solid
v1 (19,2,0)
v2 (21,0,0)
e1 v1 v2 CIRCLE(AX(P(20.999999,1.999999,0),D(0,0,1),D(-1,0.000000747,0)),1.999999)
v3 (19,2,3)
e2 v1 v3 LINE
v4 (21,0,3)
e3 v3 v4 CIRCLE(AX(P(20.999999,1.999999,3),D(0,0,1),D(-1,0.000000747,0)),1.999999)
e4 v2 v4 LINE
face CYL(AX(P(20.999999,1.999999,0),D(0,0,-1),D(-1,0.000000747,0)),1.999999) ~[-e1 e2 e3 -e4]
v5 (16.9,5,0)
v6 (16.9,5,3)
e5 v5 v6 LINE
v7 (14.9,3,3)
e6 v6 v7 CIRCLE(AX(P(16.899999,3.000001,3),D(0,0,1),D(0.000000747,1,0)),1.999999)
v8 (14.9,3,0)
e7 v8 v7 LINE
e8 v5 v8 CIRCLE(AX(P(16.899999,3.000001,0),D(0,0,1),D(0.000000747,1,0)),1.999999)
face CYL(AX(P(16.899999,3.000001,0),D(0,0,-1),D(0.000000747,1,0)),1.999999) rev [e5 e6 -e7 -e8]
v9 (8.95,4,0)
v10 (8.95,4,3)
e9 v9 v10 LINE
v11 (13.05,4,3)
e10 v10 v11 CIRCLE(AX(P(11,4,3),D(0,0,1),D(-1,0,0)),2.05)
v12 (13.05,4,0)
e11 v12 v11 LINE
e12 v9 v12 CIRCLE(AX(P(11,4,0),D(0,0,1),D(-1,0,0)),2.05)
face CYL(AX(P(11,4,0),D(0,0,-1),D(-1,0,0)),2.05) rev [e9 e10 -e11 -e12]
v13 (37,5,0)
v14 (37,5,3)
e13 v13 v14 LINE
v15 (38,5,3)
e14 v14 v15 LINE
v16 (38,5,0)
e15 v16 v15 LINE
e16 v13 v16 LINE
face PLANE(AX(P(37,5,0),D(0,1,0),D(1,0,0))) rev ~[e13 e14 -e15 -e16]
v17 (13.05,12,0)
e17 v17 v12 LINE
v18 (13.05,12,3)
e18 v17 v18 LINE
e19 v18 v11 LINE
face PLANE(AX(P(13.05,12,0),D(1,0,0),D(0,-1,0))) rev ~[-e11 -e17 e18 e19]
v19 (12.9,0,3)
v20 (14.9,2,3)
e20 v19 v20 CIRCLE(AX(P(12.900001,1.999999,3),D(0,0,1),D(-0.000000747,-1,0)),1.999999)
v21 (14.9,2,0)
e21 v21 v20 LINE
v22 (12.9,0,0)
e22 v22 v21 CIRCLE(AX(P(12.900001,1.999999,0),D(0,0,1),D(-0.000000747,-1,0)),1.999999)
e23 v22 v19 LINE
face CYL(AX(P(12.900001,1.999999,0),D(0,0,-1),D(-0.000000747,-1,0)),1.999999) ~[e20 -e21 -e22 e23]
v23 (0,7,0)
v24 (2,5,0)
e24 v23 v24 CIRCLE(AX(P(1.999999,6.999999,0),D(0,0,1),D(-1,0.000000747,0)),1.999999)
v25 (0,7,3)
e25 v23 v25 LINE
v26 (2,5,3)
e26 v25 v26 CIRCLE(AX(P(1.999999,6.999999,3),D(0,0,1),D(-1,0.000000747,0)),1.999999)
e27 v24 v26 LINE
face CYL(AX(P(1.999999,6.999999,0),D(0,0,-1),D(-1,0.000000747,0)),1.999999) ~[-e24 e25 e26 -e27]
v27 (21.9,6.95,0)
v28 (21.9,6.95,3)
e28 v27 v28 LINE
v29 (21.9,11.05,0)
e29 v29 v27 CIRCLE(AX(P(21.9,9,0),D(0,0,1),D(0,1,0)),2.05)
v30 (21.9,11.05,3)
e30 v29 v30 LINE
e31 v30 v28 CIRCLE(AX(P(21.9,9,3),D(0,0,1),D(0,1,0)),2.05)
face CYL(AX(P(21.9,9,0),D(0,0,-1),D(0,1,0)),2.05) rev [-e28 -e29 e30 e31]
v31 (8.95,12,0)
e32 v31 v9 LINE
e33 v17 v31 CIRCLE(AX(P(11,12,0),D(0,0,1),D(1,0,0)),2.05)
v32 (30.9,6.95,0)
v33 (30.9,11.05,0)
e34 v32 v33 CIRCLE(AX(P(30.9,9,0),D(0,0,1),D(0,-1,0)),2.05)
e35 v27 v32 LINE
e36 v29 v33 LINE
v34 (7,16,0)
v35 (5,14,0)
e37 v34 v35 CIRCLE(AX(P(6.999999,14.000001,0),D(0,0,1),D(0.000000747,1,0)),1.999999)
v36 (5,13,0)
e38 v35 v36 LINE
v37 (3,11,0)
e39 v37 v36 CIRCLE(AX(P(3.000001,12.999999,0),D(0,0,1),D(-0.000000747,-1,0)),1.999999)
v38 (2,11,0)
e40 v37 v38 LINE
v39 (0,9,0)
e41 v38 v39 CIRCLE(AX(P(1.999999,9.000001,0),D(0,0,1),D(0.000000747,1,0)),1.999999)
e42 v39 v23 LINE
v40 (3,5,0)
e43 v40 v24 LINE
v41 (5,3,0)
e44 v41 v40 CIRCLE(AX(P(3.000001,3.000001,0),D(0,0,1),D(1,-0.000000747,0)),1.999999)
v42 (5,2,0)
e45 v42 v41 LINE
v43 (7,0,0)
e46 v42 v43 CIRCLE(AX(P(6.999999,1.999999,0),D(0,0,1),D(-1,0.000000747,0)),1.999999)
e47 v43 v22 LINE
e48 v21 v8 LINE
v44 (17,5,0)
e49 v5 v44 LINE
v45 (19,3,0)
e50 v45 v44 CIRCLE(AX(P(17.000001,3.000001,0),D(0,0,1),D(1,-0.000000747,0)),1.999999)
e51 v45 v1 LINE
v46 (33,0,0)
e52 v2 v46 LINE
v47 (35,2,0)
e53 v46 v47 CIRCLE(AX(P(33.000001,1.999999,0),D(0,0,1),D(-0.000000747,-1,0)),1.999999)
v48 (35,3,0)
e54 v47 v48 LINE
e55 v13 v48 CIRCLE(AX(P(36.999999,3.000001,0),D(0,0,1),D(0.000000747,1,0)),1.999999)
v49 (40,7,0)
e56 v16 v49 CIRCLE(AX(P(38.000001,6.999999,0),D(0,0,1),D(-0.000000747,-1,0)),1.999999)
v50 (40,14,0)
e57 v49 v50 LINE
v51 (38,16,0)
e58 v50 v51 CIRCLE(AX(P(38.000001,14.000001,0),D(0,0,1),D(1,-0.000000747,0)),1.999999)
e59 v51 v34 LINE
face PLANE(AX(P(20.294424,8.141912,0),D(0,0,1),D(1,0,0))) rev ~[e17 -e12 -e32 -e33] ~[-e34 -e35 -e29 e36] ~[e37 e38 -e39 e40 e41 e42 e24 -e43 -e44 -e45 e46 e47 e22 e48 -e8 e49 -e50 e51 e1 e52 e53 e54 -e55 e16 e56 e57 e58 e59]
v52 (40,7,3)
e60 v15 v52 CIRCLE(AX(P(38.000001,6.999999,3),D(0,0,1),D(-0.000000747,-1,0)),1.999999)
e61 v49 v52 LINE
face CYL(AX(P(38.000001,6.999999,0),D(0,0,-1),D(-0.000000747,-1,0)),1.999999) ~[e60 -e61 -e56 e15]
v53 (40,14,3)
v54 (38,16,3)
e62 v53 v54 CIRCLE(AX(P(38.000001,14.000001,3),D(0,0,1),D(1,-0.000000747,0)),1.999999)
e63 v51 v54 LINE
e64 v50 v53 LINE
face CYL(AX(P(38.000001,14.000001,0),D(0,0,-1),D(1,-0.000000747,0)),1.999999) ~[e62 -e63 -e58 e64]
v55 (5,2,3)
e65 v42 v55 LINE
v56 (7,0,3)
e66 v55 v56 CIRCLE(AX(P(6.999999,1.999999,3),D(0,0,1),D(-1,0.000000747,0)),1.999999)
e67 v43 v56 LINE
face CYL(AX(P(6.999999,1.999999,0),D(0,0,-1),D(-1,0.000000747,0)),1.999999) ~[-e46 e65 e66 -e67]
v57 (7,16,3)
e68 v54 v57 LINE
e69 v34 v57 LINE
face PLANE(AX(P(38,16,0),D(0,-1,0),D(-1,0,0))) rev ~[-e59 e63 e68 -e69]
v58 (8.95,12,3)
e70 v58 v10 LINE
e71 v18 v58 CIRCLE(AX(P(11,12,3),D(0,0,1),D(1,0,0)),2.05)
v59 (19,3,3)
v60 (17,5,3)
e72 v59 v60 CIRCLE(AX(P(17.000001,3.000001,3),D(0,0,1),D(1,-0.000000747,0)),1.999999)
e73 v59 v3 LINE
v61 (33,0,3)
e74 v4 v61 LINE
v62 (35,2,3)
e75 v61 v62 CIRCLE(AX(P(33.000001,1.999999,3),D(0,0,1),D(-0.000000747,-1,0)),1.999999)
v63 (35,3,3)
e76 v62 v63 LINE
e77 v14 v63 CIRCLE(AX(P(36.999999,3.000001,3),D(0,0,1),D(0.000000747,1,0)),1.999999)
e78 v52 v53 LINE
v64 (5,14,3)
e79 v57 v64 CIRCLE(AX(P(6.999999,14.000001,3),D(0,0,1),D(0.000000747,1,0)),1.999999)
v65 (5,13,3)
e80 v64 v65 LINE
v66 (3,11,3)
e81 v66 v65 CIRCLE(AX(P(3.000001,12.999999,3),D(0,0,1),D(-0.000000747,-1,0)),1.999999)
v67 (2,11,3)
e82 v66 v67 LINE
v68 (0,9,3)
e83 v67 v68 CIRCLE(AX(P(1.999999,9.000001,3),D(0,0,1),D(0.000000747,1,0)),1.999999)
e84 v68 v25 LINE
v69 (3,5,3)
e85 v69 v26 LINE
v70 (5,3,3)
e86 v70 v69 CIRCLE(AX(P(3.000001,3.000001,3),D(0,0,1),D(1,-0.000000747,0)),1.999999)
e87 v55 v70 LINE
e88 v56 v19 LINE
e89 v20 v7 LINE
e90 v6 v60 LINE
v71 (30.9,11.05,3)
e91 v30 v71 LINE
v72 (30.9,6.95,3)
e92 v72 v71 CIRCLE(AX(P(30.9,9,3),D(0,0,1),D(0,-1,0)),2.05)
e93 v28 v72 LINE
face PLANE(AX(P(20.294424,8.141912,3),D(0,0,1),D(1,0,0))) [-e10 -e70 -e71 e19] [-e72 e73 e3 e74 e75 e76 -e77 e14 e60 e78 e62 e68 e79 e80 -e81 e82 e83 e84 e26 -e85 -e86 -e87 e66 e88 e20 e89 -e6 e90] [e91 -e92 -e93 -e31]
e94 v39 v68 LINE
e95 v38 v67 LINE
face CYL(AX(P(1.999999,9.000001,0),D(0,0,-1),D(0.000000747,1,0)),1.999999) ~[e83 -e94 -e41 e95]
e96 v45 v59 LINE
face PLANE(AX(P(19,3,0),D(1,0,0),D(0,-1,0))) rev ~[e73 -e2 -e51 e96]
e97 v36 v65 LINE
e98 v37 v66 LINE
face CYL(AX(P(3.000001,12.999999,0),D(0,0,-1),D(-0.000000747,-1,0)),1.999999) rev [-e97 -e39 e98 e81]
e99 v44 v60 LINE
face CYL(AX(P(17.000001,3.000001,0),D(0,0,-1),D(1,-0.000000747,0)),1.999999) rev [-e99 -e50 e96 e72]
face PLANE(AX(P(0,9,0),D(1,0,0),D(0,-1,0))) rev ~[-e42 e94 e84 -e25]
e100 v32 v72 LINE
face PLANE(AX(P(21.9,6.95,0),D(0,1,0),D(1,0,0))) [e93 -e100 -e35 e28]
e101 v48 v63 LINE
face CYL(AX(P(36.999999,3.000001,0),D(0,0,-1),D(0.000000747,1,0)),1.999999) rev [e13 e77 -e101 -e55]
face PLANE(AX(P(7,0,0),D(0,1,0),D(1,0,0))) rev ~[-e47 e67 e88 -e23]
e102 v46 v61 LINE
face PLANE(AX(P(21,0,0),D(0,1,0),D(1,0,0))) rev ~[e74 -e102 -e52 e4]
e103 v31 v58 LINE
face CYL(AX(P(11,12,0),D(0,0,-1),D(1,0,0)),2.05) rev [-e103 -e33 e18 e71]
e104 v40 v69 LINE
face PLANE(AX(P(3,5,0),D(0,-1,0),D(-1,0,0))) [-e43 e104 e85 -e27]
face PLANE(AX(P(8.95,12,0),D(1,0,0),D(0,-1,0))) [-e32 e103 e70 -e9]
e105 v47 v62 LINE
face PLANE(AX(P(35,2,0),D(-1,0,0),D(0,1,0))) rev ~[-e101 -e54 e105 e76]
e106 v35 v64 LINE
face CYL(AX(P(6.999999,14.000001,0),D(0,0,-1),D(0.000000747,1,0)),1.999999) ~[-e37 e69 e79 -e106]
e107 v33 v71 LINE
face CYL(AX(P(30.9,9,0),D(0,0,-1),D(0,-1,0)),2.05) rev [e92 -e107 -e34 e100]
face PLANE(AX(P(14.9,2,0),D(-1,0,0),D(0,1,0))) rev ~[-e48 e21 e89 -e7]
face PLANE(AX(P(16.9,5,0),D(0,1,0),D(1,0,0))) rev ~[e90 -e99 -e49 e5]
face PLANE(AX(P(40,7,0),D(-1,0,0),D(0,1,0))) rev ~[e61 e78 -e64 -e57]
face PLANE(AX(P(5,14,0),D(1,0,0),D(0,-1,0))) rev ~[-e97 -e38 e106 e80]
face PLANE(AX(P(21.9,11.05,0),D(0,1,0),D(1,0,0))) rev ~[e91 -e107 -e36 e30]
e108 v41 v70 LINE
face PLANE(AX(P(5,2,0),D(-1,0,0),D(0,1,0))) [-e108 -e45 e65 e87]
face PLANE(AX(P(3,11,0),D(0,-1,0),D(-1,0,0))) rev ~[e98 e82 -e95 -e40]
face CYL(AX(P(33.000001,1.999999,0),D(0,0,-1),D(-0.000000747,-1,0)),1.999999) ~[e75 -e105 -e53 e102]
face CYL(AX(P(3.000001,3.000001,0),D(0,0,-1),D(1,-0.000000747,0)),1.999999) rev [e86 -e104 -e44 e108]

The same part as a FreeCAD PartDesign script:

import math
import FreeCAD as App
import Part
import Sketcher

doc = App.newDocument("Part")
params = doc.addObject("Spreadsheet::Sheet", "Params")
for row, (alias, value) in enumerate([
    ("sketch1_radius", "1.999999 mm"),
    ("sketch1_width", "12 mm"),
    ("sketch1_width2", "1 mm"),
    ("sketch1_width3", "31 mm"),
    ("sketch1_width4", "9 mm"),
    ("pad1_length", "3 mm"),
], start=1):
    params.set(f"A{row}", alias)
    params.set(f"B{row}", "=" + value)
    params.setAlias(f"B{row}", alias)

body = doc.addObject("PartDesign::Body", "Body")

sketch1 = doc.addObject("Sketcher::SketchObject", "Sketch")
body.addObject(sketch1)
sketch1.AttachmentSupport = (doc.XY_Plane, [""])
sketch1.MapMode = "FlatFace"
sketch1.addGeometry(Part.LineSegment(App.Vector(7, 0, 0), App.Vector(12.9, 0, 0)), False)
sketch1.addGeometry(Part.ArcOfCircle(Part.Circle(App.Vector(12.9, 2, 0), App.Vector(0, 0, 1), 2), math.radians(-90), math.radians(0)), False)
sketch1.addGeometry(Part.LineSegment(App.Vector(14.9, 2, 0), App.Vector(14.9, 3, 0)), False)
sketch1.addGeometry(Part.ArcOfCircle(Part.Circle(App.Vector(16.9, 3, 0), App.Vector(0, 0, 1), 2), math.radians(90), math.radians(180)), False)
sketch1.addGeometry(Part.LineSegment(App.Vector(16.9, 5, 0), App.Vector(17, 5, 0)), False)
sketch1.addGeometry(Part.ArcOfCircle(Part.Circle(App.Vector(17, 3, 0), App.Vector(0, 0, 1), 2), math.radians(0), math.radians(90)), False)
sketch1.addGeometry(Part.LineSegment(App.Vector(19, 3, 0), App.Vector(19, 2, 0)), False)
sketch1.addGeometry(Part.ArcOfCircle(Part.Circle(App.Vector(21, 2, 0), App.Vector(0, 0, 1), 2), math.radians(180), math.radians(270)), False)
sketch1.addGeometry(Part.LineSegment(App.Vector(21, 0, 0), App.Vector(33, 0, 0)), False)
sketch1.addGeometry(Part.ArcOfCircle(Part.Circle(App.Vector(33, 2, 0), App.Vector(0, 0, 1), 2), math.radians(-90), math.radians(0)), False)
sketch1.addGeometry(Part.LineSegment(App.Vector(35, 2, 0), App.Vector(35, 3, 0)), False)
sketch1.addGeometry(Part.ArcOfCircle(Part.Circle(App.Vector(37, 3, 0), App.Vector(0, 0, 1), 2), math.radians(90), math.radians(180)), False)
sketch1.addGeometry(Part.LineSegment(App.Vector(37, 5, 0), App.Vector(38, 5, 0)), False)
sketch1.addGeometry(Part.ArcOfCircle(Part.Circle(App.Vector(38, 7, 0), App.Vector(0, 0, 1), 2), math.radians(-90), math.radians(0)), False)
sketch1.addGeometry(Part.LineSegment(App.Vector(40, 7, 0), App.Vector(40, 14, 0)), False)
sketch1.addGeometry(Part.ArcOfCircle(Part.Circle(App.Vector(38, 14, 0), App.Vector(0, 0, 1), 2), math.radians(0), math.radians(90)), False)
sketch1.addGeometry(Part.LineSegment(App.Vector(38, 16, 0), App.Vector(7, 16, 0)), False)
sketch1.addGeometry(Part.ArcOfCircle(Part.Circle(App.Vector(7, 14, 0), App.Vector(0, 0, 1), 2), math.radians(90), math.radians(180)), False)
sketch1.addGeometry(Part.LineSegment(App.Vector(5, 14, 0), App.Vector(5, 13, 0)), False)
sketch1.addGeometry(Part.ArcOfCircle(Part.Circle(App.Vector(3, 13, 0), App.Vector(0, 0, 1), 2), math.radians(-90), math.radians(0)), False)
sketch1.addGeometry(Part.LineSegment(App.Vector(3, 11, 0), App.Vector(2, 11, 0)), False)
sketch1.addGeometry(Part.ArcOfCircle(Part.Circle(App.Vector(2, 9, 0), App.Vector(0, 0, 1), 2), math.radians(90), math.radians(180)), False)
sketch1.addGeometry(Part.LineSegment(App.Vector(0, 9, 0), App.Vector(0, 7, 0)), False)
sketch1.addGeometry(Part.ArcOfCircle(Part.Circle(App.Vector(2, 7, 0), App.Vector(0, 0, 1), 2), math.radians(180), math.radians(270)), False)
sketch1.addGeometry(Part.LineSegment(App.Vector(2, 5, 0), App.Vector(3, 5, 0)), False)
sketch1.addGeometry(Part.ArcOfCircle(Part.Circle(App.Vector(3, 3, 0), App.Vector(0, 0, 1), 2), math.radians(0), math.radians(90)), False)
sketch1.addGeometry(Part.LineSegment(App.Vector(5, 3, 0), App.Vector(5, 2, 0)), False)
sketch1.addGeometry(Part.ArcOfCircle(Part.Circle(App.Vector(7, 2, 0), App.Vector(0, 0, 1), 2), math.radians(180), math.radians(270)), False)
sketch1.addGeometry(Part.ArcOfCircle(Part.Circle(App.Vector(11, 12, 0), App.Vector(0, 0, 1), 2.05), math.radians(0), math.radians(180)), False)
sketch1.addGeometry(Part.LineSegment(App.Vector(13.05, 12, 0), App.Vector(13.05, 4, 0)), False)
sketch1.addGeometry(Part.ArcOfCircle(Part.Circle(App.Vector(11, 4, 0), App.Vector(0, 0, 1), 2.05), math.radians(180), math.radians(360)), False)
sketch1.addGeometry(Part.LineSegment(App.Vector(8.95, 4, 0), App.Vector(8.95, 12, 0)), False)
sketch1.addGeometry(Part.ArcOfCircle(Part.Circle(App.Vector(21.9, 9, 0), App.Vector(0, 0, 1), 2.05), math.radians(90), math.radians(270)), False)
sketch1.addGeometry(Part.LineSegment(App.Vector(21.9, 11.05, 0), App.Vector(30.9, 11.05, 0)), False)
sketch1.addGeometry(Part.ArcOfCircle(Part.Circle(App.Vector(30.9, 9, 0), App.Vector(0, 0, 1), 2.05), math.radians(-90), math.radians(90)), False)
sketch1.addGeometry(Part.LineSegment(App.Vector(30.9, 6.95, 0), App.Vector(21.9, 6.95, 0)), False)
sketch1.addConstraint(Sketcher.Constraint("Tangent", 0, 2, 1, 1))
sketch1.addConstraint(Sketcher.Constraint("Tangent", 1, 2, 2, 1))
sketch1.addConstraint(Sketcher.Constraint("Tangent", 2, 2, 3, 2))
sketch1.addConstraint(Sketcher.Constraint("Tangent", 3, 1, 4, 1))
sketch1.addConstraint(Sketcher.Constraint("Tangent", 4, 2, 5, 2))
sketch1.addConstraint(Sketcher.Constraint("Tangent", 5, 1, 6, 1))
sketch1.addConstraint(Sketcher.Constraint("Tangent", 6, 2, 7, 1))
sketch1.addConstraint(Sketcher.Constraint("Tangent", 7, 2, 8, 1))
sketch1.addConstraint(Sketcher.Constraint("Tangent", 8, 2, 9, 1))
sketch1.addConstraint(Sketcher.Constraint("Tangent", 9, 2, 10, 1))
sketch1.addConstraint(Sketcher.Constraint("Tangent", 10, 2, 11, 2))
sketch1.addConstraint(Sketcher.Constraint("Tangent", 11, 1, 12, 1))
sketch1.addConstraint(Sketcher.Constraint("Tangent", 12, 2, 13, 1))
sketch1.addConstraint(Sketcher.Constraint("Tangent", 13, 2, 14, 1))
sketch1.addConstraint(Sketcher.Constraint("Tangent", 14, 2, 15, 1))
sketch1.addConstraint(Sketcher.Constraint("Tangent", 15, 2, 16, 1))
sketch1.addConstraint(Sketcher.Constraint("Tangent", 16, 2, 17, 1))
sketch1.addConstraint(Sketcher.Constraint("Tangent", 17, 2, 18, 1))
sketch1.addConstraint(Sketcher.Constraint("Tangent", 18, 2, 19, 2))
sketch1.addConstraint(Sketcher.Constraint("Tangent", 19, 1, 20, 1))
sketch1.addConstraint(Sketcher.Constraint("Tangent", 20, 2, 21, 1))
sketch1.addConstraint(Sketcher.Constraint("Tangent", 21, 2, 22, 1))
sketch1.addConstraint(Sketcher.Constraint("Tangent", 22, 2, 23, 1))
sketch1.addConstraint(Sketcher.Constraint("Tangent", 23, 2, 24, 1))
sketch1.addConstraint(Sketcher.Constraint("Tangent", 24, 2, 25, 2))
sketch1.addConstraint(Sketcher.Constraint("Tangent", 25, 1, 26, 1))
sketch1.addConstraint(Sketcher.Constraint("Tangent", 26, 2, 27, 1))
sketch1.addConstraint(Sketcher.Constraint("Tangent", 27, 2, 0, 1))
sketch1.addConstraint(Sketcher.Constraint("Tangent", 28, 1, 29, 1))
sketch1.addConstraint(Sketcher.Constraint("Tangent", 29, 2, 30, 2))
sketch1.addConstraint(Sketcher.Constraint("Tangent", 30, 1, 31, 1))
sketch1.addConstraint(Sketcher.Constraint("Tangent", 31, 2, 28, 2))
sketch1.addConstraint(Sketcher.Constraint("Tangent", 32, 1, 33, 1))
sketch1.addConstraint(Sketcher.Constraint("Tangent", 33, 2, 34, 2))
sketch1.addConstraint(Sketcher.Constraint("Tangent", 34, 1, 35, 1))
sketch1.addConstraint(Sketcher.Constraint("Tangent", 35, 2, 32, 2))
sketch1.addConstraint(Sketcher.Constraint("Horizontal", 0))
sketch1.addConstraint(Sketcher.Constraint("Vertical", 2))
sketch1.addConstraint(Sketcher.Constraint("Horizontal", 4))
sketch1.addConstraint(Sketcher.Constraint("Vertical", 6))
sketch1.addConstraint(Sketcher.Constraint("Horizontal", 8))
sketch1.addConstraint(Sketcher.Constraint("Vertical", 10))
sketch1.addConstraint(Sketcher.Constraint("Horizontal", 12))
sketch1.addConstraint(Sketcher.Constraint("Vertical", 14))
sketch1.addConstraint(Sketcher.Constraint("Horizontal", 16))
sketch1.addConstraint(Sketcher.Constraint("Vertical", 18))
sketch1.addConstraint(Sketcher.Constraint("Horizontal", 20))
sketch1.addConstraint(Sketcher.Constraint("Vertical", 22))
sketch1.addConstraint(Sketcher.Constraint("Horizontal", 24))
sketch1.addConstraint(Sketcher.Constraint("Vertical", 26))
sketch1.addConstraint(Sketcher.Constraint("Vertical", 29))
sketch1.addConstraint(Sketcher.Constraint("Vertical", 31))
sketch1.addConstraint(Sketcher.Constraint("Horizontal", 33))
sketch1.addConstraint(Sketcher.Constraint("Horizontal", 35))
sketch1.addConstraint(Sketcher.Constraint("Equal", 1, 3))
sketch1.addConstraint(Sketcher.Constraint("Equal", 3, 5))
sketch1.addConstraint(Sketcher.Constraint("Equal", 5, 7))
sketch1.addConstraint(Sketcher.Constraint("Equal", 7, 9))
sketch1.addConstraint(Sketcher.Constraint("Equal", 9, 11))
sketch1.addConstraint(Sketcher.Constraint("Equal", 11, 13))
sketch1.addConstraint(Sketcher.Constraint("Equal", 13, 15))
sketch1.addConstraint(Sketcher.Constraint("Equal", 15, 17))
sketch1.addConstraint(Sketcher.Constraint("Equal", 17, 19))
sketch1.addConstraint(Sketcher.Constraint("Equal", 19, 21))
sketch1.addConstraint(Sketcher.Constraint("Equal", 21, 23))
sketch1.addConstraint(Sketcher.Constraint("Equal", 23, 25))
sketch1.addConstraint(Sketcher.Constraint("Equal", 25, 27))
sketch1.addConstraint(Sketcher.Constraint("Equal", 30, 32))
sketch1.addConstraint(Sketcher.Constraint("PointOnObject", 0, 2, -1))
sketch1.addConstraint(Sketcher.Constraint("PointOnObject", 7, 2, -1))
sketch1.addConstraint(Sketcher.Constraint("PointOnObject", 21, 2, -2))
sketch1.addConstraint(Sketcher.Constraint("Horizontal", 5, 3, 11, 3))
sketch1.addConstraint(Sketcher.Constraint("Horizontal", 13, 3, 23, 3))
sketch1.addConstraint(Sketcher.Constraint("Horizontal", 21, 3, 32, 3))
sketch1.addConstraint(Sketcher.Constraint("Vertical", 19, 3, 25, 3))
sketch1.addConstraint(Sketcher.Constraint("Equal", 12, 20))
sketch1.addConstraint(Sketcher.Constraint("Equal", 24, 2))
sketch1.addConstraint(Sketcher.Constraint("Equal", 10, 18))
sketch1.addConstraint(Sketcher.Constraint("Radius", 1, 1.999999))
sketch1.addConstraint(Sketcher.Constraint("DistanceX", 8, 1, 8, 2, 12.0))
sketch1.addConstraint(Sketcher.Constraint("DistanceX", 12, 1, 12, 2, 1.0))
sketch1.addConstraint(Sketcher.Constraint("DistanceX", 16, 2, 16, 1, 31.0))
sketch1.addConstraint(Sketcher.Constraint("DistanceX", 33, 1, 33, 2, 9.0))
sketch1.addConstraint(Sketcher.Constraint("DistanceY", 14, 1, 14, 2, 7.0))
sketch1.addConstraint(Sketcher.Constraint("DistanceY", 29, 2, 29, 1, 8.0))
sketch1.addConstraint(Sketcher.Constraint("Radius", 28, 2.05))
sketch1.addConstraint(Sketcher.Constraint("DistanceX", 0, 1, 0, 2, 5.9))
sketch1.addConstraint(Sketcher.Constraint("DistanceX", -1, 1, 28, 3, 11.0))
sketch1.addConstraint(Sketcher.Constraint("DistanceY", -1, 1, 28, 3, 12.0))
sketch1.addConstraint(Sketcher.Constraint("DistanceX", 3, 3, 32, 3, 5.000001))
sketch1.setExpression("Constraints[78]", "Params.sketch1_radius")
sketch1.setExpression("Constraints[79]", "Params.sketch1_width")
sketch1.setExpression("Constraints[80]", "Params.sketch1_width2")
sketch1.setExpression("Constraints[81]", "Params.sketch1_width3")
sketch1.setExpression("Constraints[82]", "Params.sketch1_width4")
pad1 = doc.addObject("PartDesign::Pad", "Pad")
body.addObject(pad1)
pad1.Profile = sketch1
pad1.setExpression("Length", "Params.pad1_length")

doc.recompute()
